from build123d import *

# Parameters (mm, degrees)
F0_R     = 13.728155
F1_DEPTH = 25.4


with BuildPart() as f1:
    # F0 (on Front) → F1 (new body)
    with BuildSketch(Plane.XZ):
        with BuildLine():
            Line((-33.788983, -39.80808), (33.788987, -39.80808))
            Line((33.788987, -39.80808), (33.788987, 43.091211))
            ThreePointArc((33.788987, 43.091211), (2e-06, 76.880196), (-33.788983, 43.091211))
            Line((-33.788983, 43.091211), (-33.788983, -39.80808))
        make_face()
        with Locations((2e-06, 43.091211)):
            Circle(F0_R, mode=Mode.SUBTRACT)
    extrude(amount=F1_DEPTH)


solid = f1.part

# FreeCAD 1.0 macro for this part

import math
import FreeCAD as App
import Part
import Sketcher
from FreeCAD import Vector
Q = App.Units.Quantity

doc = App.newDocument("Part")
body = doc.addObject("PartDesign::Body", "Body")

# Sketch on XZ plane
sketch1 = doc.addObject("Sketcher::SketchObject", "Sketch")
body.addObject(sketch1)
sketch1.AttachmentSupport = (doc.XZ_Plane, [""])
sketch1.MapMode = "FlatFace"
sketch1.addGeometry([
    Part.LineSegment(Vector(-34, -40, 0), Vector(34, -40, 0)),  # 0
    Part.LineSegment(Vector(34, -40, 0), Vector(34, 43, 0)),  # 1
    Part.ArcOfCircle(Part.Circle(Vector(0, 43, 0), Vector(0, 0, 1), 34), math.radians(0), math.radians(180)),  # 2
    Part.LineSegment(Vector(-34, 43, 0), Vector(-34, -40, 0)),  # 3
    Part.Circle(Vector(0, 43, 0), Vector(0, 0, 1), 14),  # 4
], False)
sketch1.addConstraint([
    Sketcher.Constraint("Coincident", 0, 2, 1, 1),
    Sketcher.Constraint("Tangent", 1, 2, 2, 1),
    Sketcher.Constraint("Tangent", 2, 2, 3, 1),
    Sketcher.Constraint("Coincident", 3, 2, 0, 1),
    Sketcher.Constraint("Horizontal", 0),
    Sketcher.Constraint("Vertical", 1),
    Sketcher.Constraint("Vertical", 3),
    Sketcher.Constraint("Coincident", 4, 3, 2, 3),
    Sketcher.Constraint("Diameter", 4, Q("27.45631 mm")),
    Sketcher.Constraint("Radius", 2, Q("33.788985 mm")),
    Sketcher.Constraint("DistanceY", 1, 1, 1, 2, Q("82.899291 mm")),
    Sketcher.Constraint("DistanceY", -1, 1, 2, 3, Q("43.091211 mm")),
    Sketcher.Constraint("DistanceX", -1, 1, 0, 2, Q("33.788987 mm")),
])
pad1 = doc.addObject("PartDesign::Pad", "Pad")
body.addObject(pad1)
pad1.Profile = sketch1
pad1.Length = Q("1 in")

doc.recompute()
